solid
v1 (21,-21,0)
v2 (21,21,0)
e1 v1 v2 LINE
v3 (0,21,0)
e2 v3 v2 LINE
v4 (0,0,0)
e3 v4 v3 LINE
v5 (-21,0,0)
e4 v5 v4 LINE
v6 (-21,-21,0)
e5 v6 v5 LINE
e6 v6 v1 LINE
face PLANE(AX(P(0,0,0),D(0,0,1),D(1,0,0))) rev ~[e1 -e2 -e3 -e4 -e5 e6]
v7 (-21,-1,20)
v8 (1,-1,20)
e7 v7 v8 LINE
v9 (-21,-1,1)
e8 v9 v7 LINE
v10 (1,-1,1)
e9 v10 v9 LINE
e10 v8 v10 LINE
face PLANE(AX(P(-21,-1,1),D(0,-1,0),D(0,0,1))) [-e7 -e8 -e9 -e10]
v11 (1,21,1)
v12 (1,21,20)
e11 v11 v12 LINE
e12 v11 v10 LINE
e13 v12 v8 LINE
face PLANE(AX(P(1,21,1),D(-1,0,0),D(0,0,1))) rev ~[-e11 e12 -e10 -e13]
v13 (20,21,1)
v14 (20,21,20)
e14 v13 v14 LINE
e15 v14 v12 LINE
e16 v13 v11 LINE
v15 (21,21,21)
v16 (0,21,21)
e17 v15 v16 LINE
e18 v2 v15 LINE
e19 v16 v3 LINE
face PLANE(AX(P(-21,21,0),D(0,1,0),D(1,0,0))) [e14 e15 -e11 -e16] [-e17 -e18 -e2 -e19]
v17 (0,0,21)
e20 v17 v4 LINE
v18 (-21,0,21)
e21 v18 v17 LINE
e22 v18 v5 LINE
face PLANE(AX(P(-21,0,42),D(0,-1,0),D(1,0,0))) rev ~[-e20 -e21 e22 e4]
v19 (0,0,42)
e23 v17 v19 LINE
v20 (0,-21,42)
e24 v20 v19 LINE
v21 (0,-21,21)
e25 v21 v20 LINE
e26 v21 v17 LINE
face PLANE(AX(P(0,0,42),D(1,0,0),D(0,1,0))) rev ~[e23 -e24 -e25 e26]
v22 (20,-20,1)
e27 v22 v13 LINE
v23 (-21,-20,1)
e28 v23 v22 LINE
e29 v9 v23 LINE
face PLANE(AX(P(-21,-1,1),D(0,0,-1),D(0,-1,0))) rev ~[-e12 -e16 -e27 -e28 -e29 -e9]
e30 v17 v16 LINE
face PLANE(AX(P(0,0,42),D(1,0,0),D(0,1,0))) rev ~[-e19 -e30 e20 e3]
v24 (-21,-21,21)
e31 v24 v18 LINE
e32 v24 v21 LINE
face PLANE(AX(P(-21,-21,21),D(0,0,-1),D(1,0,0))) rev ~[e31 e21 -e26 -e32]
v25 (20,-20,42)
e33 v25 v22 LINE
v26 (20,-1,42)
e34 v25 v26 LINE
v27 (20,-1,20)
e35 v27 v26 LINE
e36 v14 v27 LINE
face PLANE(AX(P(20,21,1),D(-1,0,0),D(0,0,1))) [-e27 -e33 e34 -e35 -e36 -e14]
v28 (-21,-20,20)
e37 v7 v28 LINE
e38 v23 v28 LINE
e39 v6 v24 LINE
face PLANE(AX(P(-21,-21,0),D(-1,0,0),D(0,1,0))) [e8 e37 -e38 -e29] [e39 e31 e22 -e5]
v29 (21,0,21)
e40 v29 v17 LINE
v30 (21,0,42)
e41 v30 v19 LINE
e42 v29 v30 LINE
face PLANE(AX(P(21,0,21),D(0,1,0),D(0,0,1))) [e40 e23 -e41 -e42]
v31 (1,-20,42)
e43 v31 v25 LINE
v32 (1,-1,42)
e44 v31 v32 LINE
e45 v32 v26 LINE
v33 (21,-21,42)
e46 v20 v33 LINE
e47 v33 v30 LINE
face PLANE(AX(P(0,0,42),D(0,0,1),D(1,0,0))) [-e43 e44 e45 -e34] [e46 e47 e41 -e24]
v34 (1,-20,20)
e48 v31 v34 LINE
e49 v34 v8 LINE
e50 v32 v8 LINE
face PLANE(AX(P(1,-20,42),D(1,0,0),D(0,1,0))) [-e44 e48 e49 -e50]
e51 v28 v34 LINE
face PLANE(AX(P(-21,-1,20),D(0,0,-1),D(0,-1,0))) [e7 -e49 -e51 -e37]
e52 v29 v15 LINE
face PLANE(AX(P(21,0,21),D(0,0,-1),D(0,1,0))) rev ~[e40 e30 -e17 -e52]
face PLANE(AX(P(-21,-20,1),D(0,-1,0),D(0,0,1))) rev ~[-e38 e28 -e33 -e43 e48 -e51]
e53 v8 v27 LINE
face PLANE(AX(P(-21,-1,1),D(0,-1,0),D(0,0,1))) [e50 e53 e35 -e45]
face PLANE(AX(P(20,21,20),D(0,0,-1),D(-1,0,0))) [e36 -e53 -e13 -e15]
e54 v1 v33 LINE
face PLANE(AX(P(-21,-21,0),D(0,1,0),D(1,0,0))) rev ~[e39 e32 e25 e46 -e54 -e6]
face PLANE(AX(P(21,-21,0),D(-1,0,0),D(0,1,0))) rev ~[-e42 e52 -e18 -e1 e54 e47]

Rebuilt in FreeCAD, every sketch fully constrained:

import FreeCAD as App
import Part
import Sketcher


def add_polygon(sketch, points):
    """Adds a closed chain of lines whose ends are joined by coincident constraints."""
    first, n = sketch.GeometryCount, len(points)
    for a, b in zip(points, points[1:] + points[:1]):
        sketch.addGeometry(Part.LineSegment(App.Vector(*a, 0), App.Vector(*b, 0)), False)
    for i in range(n):
        sketch.addConstraint(Sketcher.Constraint("Coincident", first + i, 2, first + (i + 1) % n, 1))

doc = App.newDocument("Part")
body = doc.addObject("PartDesign::Body", "Body")

# Sketch on XY plane
sketch1 = body.newObject("Sketcher::SketchObject", "Sketch")
sketch1.AttachmentSupport = (doc.getObject("XY_Plane"), [""])
sketch1.MapMode = "FlatFace"
add_polygon(sketch1, [(-21, 21), (-21, -21), (21, -21), (21, 21)])  # lines 0-3
sketch1.addConstraint(Sketcher.Constraint("Vertical", 0))
sketch1.addConstraint(Sketcher.Constraint("Horizontal", 1))
sketch1.addConstraint(Sketcher.Constraint("Vertical", 2))
sketch1.addConstraint(Sketcher.Constraint("Horizontal", 3))
sketch1.addConstraint(Sketcher.Constraint("Symmetric", 0, 2, 2, 2, -1, 1))
sketch1.addConstraint(Sketcher.Constraint("Equal", 3, 0))
sketch1.addConstraint(Sketcher.Constraint("DistanceX", 1, 1, 1, 2, 42.0))
pad1 = body.newObject("PartDesign::Pad", "Pad")
pad1.Profile = sketch1
pad1.Length = 42

# Sketch on XY plane
sketch2 = body.newObject("Sketcher::SketchObject", "Sketch001")
sketch2.AttachmentSupport = (doc.getObject("XY_Plane"), [""])
sketch2.MapMode = "FlatFace"
sketch2.AttachmentOffset = App.Placement(App.Vector(0, 0, 42), App.Rotation())
add_polygon(sketch2, [(-21, 21), (-21, 0), (0, 0), (0, 21)])  # lines 0-3
sketch2.addConstraint(Sketcher.Constraint("Vertical", 0))
sketch2.addConstraint(Sketcher.Constraint("Horizontal", 1))
sketch2.addConstraint(Sketcher.Constraint("Vertical", 2))
sketch2.addConstraint(Sketcher.Constraint("Horizontal", 3))
sketch2.addConstraint(Sketcher.Constraint("Coincident", 1, 2, -1, 1))
sketch2.addConstraint(Sketcher.Constraint("Equal", 3, 0))
sketch2.addConstraint(Sketcher.Constraint("DistanceX", 1, 1, 1, 2, 21.0))
pocket1 = body.newObject("PartDesign::Pocket", "Pocket")
pocket1.Profile = sketch2
pocket1.Type = "ThroughAll"

# Sketch on XZ plane
sketch3 = body.newObject("Sketcher::SketchObject", "Sketch002")
sketch3.AttachmentSupport = (doc.getObject("XZ_Plane"), [""])
sketch3.MapMode = "FlatFace"
sketch3.AttachmentOffset = App.Placement(App.Vector(0, 0, 21), App.Rotation())
add_polygon(sketch3, [(-21, 42), (-21, 21), (0, 21), (0, 42)])  # lines 0-3
sketch3.addConstraint(Sketcher.Constraint("Vertical", 0))
sketch3.addConstraint(Sketcher.Constraint("Horizontal", 1))
sketch3.addConstraint(Sketcher.Constraint("Vertical", 2))
sketch3.addConstraint(Sketcher.Constraint("Horizontal", 3))
sketch3.addConstraint(Sketcher.Constraint("PointOnObject", 1, 2, -2))
sketch3.addConstraint(Sketcher.Constraint("Equal", 3, 0))
sketch3.addConstraint(Sketcher.Constraint("DistanceX", 1, 1, 1, 2, 21.0))
sketch3.addConstraint(Sketcher.Constraint("DistanceY", -1, 1, 0, 2, 21.0))
pocket2 = body.newObject("PartDesign::Pocket", "Pocket001")
pocket2.Profile = sketch3
pocket2.Type = "ThroughAll"

# Sketch on YZ plane
sketch4 = body.newObject("Sketcher::SketchObject", "Sketch003")
sketch4.AttachmentSupport = (doc.getObject("YZ_Plane"), [""])
sketch4.MapMode = "FlatFace"
sketch4.AttachmentOffset = App.Placement(App.Vector(0, 0, 21), App.Rotation())
add_polygon(sketch4, [(0, 42), (0, 21), (21, 21), (21, 42)])  # lines 0-3
sketch4.addConstraint(Sketcher.Constraint("Vertical", 0))
sketch4.addConstraint(Sketcher.Constraint("Horizontal", 1))
sketch4.addConstraint(Sketcher.Constraint("Vertical", 2))
sketch4.addConstraint(Sketcher.Constraint("Horizontal", 3))
sketch4.addConstraint(Sketcher.Constraint("PointOnObject", 0, 2, -2))
sketch4.addConstraint(Sketcher.Constraint("Equal", 3, 0))
sketch4.addConstraint(Sketcher.Constraint("DistanceX", 1, 1, 1, 2, 21.0))
sketch4.addConstraint(Sketcher.Constraint("DistanceY", -1, 1, 0, 2, 21.0))
pocket3 = body.newObject("PartDesign::Pocket", "Pocket002")
pocket3.Profile = sketch4
pocket3.Type = "ThroughAll"

# Sketch on XY plane
sketch5 = body.newObject("Sketcher::SketchObject", "Sketch004")
sketch5.AttachmentSupport = (doc.getObject("XY_Plane"), [""])
sketch5.MapMode = "FlatFace"
sketch5.AttachmentOffset = App.Placement(App.Vector(0, 0, 42), App.Rotation())
add_polygon(sketch5, [(1, -1), (1, -20), (20, -20), (20, -1)])  # lines 0-3
sketch5.addConstraint(Sketcher.Constraint("Vertical", 0))
sketch5.addConstraint(Sketcher.Constraint("Horizontal", 1))
sketch5.addConstraint(Sketcher.Constraint("Vertical", 2))
sketch5.addConstraint(Sketcher.Constraint("Horizontal", 3))
sketch5.addConstraint(Sketcher.Constraint("Equal", 3, 0))
sketch5.addConstraint(Sketcher.Constraint("DistanceX", 1, 1, 1, 2, 19.0))
sketch5.addConstraint(Sketcher.Constraint("DistanceX", -1, 1, 0, 2, 1.0))
sketch5.addConstraint(Sketcher.Constraint("DistanceY", 0, 2, -1, 1, 20.0))
pocket4 = body.newObject("PartDesign::Pocket", "Pocket003")
pocket4.Profile = sketch5
pocket4.Length = 41

# Sketch on YZ plane
sketch6 = body.newObject("Sketcher::SketchObject", "Sketch005")
sketch6.AttachmentSupport = (doc.getObject("YZ_Plane"), [""])
sketch6.MapMode = "FlatFace"
sketch6.AttachmentOffset = App.Placement(App.Vector(0, 0, -21), App.Rotation())
add_polygon(sketch6, [(-1, 20), (-1, 1), (-20, 1), (-20, 20)])  # lines 0-3
sketch6.addConstraint(Sketcher.Constraint("Vertical", 0))
sketch6.addConstraint(Sketcher.Constraint("Horizontal", 1))
sketch6.addConstraint(Sketcher.Constraint("Vertical", 2))
sketch6.addConstraint(Sketcher.Constraint("Horizontal", 3))
sketch6.addConstraint(Sketcher.Constraint("Equal", 3, 0))
sketch6.addConstraint(Sketcher.Constraint("DistanceX", 1, 2, 1, 1, 19.0))
sketch6.addConstraint(Sketcher.Constraint("DistanceX", 0, 2, -1, 1, 1.0))
sketch6.addConstraint(Sketcher.Constraint("DistanceY", -1, 1, 0, 2, 1.0))
pocket5 = body.newObject("PartDesign::Pocket", "Pocket004")
pocket5.Profile = sketch6
pocket5.Length = 41
pocket5.Reversed = True

# Sketch on XZ plane
sketch7 = body.newObject("Sketcher::SketchObject", "Sketch006")
sketch7.AttachmentSupport = (doc.getObject("XZ_Plane"), [""])
sketch7.MapMode = "FlatFace"
sketch7.AttachmentOffset = App.Placement(App.Vector(0, 0, -21), App.Rotation())
add_polygon(sketch7, [(20, 20), (20, 1), (1, 1), (1, 20)])  # lines 0-3
sketch7.addConstraint(Sketcher.Constraint("Vertical", 0))
sketch7.addConstraint(Sketcher.Constraint("Horizontal", 1))
sketch7.addConstraint(Sketcher.Constraint("Vertical", 2))
sketch7.addConstraint(Sketcher.Constraint("Horizontal", 3))
sketch7.addConstraint(Sketcher.Constraint("Equal", 3, 0))
sketch7.addConstraint(Sketcher.Constraint("DistanceX", 1, 2, 1, 1, 19.0))
sketch7.addConstraint(Sketcher.Constraint("DistanceX", -1, 1, 0, 2, 20.0))
sketch7.addConstraint(Sketcher.Constraint("DistanceY", -1, 1, 0, 2, 1.0))
pocket6 = body.newObject("PartDesign::Pocket", "Pocket005")
pocket6.Profile = sketch7
pocket6.Length = 41
pocket6.Reversed = True

doc.recompute()
